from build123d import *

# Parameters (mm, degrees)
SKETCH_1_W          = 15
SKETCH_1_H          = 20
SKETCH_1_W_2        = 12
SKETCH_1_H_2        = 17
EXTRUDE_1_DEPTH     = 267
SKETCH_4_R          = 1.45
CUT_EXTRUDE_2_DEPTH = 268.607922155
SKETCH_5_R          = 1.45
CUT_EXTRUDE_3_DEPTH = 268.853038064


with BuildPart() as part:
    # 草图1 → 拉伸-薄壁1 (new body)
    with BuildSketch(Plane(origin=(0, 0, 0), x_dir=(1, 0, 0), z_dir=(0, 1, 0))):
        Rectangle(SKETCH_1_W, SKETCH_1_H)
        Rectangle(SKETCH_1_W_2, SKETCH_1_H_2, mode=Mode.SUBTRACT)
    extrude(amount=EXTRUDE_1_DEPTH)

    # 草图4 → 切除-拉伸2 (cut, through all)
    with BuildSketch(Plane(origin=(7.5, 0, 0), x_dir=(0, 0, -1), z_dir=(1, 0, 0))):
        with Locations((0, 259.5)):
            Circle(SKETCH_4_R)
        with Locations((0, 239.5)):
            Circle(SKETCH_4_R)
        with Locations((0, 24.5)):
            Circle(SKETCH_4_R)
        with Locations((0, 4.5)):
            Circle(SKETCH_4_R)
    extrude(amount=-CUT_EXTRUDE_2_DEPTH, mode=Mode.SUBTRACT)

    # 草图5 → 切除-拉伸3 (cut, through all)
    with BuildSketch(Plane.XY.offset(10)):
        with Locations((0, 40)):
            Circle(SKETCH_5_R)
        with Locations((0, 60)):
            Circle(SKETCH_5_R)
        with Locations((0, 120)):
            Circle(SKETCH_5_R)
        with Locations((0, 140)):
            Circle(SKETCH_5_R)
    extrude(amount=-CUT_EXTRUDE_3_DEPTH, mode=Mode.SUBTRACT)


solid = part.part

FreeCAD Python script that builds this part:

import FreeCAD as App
import Part
import Sketcher

V = App.Vector

doc = App.newDocument("Part")
body = doc.addObject("PartDesign::Body", "Body")

# Sketch on XZ plane
sketch1 = body.newObject("Sketcher::SketchObject", "Sketch")
sketch1.AttachmentSupport = (doc.getObject("XZ_Plane"), [""])
sketch1.MapMode = "FlatFace"
sketch1.addGeometry(Part.LineSegment(V(-8, -10, 0), V(-8, 10, 0)), False)
sketch1.addGeometry(Part.LineSegment(V(-8, 10, 0), V(8, 10, 0)), False)
sketch1.addGeometry(Part.LineSegment(V(8, 10, 0), V(8, -10, 0)), False)
sketch1.addGeometry(Part.LineSegment(V(8, -10, 0), V(-8, -10, 0)), False)
sketch1.addGeometry(Part.LineSegment(V(6, 8, 0), V(-6, 8, 0)), False)
sketch1.addGeometry(Part.LineSegment(V(-6, 8, 0), V(-6, -8, 0)), False)
sketch1.addGeometry(Part.LineSegment(V(-6, -8, 0), V(6, -8, 0)), False)
sketch1.addGeometry(Part.LineSegment(V(6, -8, 0), V(6, 8, 0)), False)
sketch1.addConstraint(Sketcher.Constraint("Coincident", 0, 2, 1, 1))
sketch1.addConstraint(Sketcher.Constraint("Coincident", 1, 2, 2, 1))
sketch1.addConstraint(Sketcher.Constraint("Coincident", 2, 2, 3, 1))
sketch1.addConstraint(Sketcher.Constraint("Coincident", 3, 2, 0, 1))
sketch1.addConstraint(Sketcher.Constraint("Coincident", 4, 2, 5, 1))
sketch1.addConstraint(Sketcher.Constraint("Coincident", 5, 2, 6, 1))
sketch1.addConstraint(Sketcher.Constraint("Coincident", 6, 2, 7, 1))
sketch1.addConstraint(Sketcher.Constraint("Coincident", 7, 2, 4, 1))
sketch1.addConstraint(Sketcher.Constraint("Vertical", 0))
sketch1.addConstraint(Sketcher.Constraint("Horizontal", 1))
sketch1.addConstraint(Sketcher.Constraint("Vertical", 2))
sketch1.addConstraint(Sketcher.Constraint("Horizontal", 3))
sketch1.addConstraint(Sketcher.Constraint("Horizontal", 4))
sketch1.addConstraint(Sketcher.Constraint("Vertical", 5))
sketch1.addConstraint(Sketcher.Constraint("Horizontal", 6))
sketch1.addConstraint(Sketcher.Constraint("Vertical", 7))
sketch1.addConstraint(Sketcher.Constraint("Symmetric", 0, 2, 2, 2, -1, 1))
sketch1.addConstraint(Sketcher.Constraint("Symmetric", 4, 2, 6, 2, -1, 1))
sketch1.addConstraint(Sketcher.Constraint("DistanceX", 1, 1, 1, 2, 15.0))
sketch1.addConstraint(Sketcher.Constraint("DistanceX", 4, 2, 4, 1, 12.0))
sketch1.addConstraint(Sketcher.Constraint("DistanceY", 0, 1, 0, 2, 20.0))
sketch1.addConstraint(Sketcher.Constraint("DistanceY", 5, 2, 5, 1, 17.0))
pad1 = body.newObject("PartDesign::Pad", "Pad")
pad1.Profile = sketch1
pad1.Length = 267
pad1.Reversed = True

# Sketch on YZ plane
sketch2 = body.newObject("Sketcher::SketchObject", "Sketch001")
sketch2.AttachmentSupport = (doc.getObject("YZ_Plane"), [""])
sketch2.MapMode = "FlatFace"
sketch2.AttachmentOffset = App.Placement(V(0, 0, 7.5), App.Rotation())
sketch2.addGeometry(Part.Circle(V(259.5, 0, 0), V(0, 0, 1), 1.4), False)
sketch2.addGeometry(Part.Circle(V(239.5, 0, 0), V(0, 0, 1), 1.4), False)
sketch2.addGeometry(Part.Circle(V(24.5, 0, 0), V(0, 0, 1), 1.4), False)
sketch2.addGeometry(Part.Circle(V(4.5, 0, 0), V(0, 0, 1), 1.4), False)
sketch2.addConstraint(Sketcher.Constraint("Equal", 0, 1))
sketch2.addConstraint(Sketcher.Constraint("Equal", 1, 2))
sketch2.addConstraint(Sketcher.Constraint("Equal", 2, 3))
sketch2.addConstraint(Sketcher.Constraint("PointOnObject", 0, 3, -1))
sketch2.addConstraint(Sketcher.Constraint("PointOnObject", 1, 3, -1))
sketch2.addConstraint(Sketcher.Constraint("PointOnObject", 2, 3, -1))
sketch2.addConstraint(Sketcher.Constraint("PointOnObject", 3, 3, -1))
sketch2.addConstraint(Sketcher.Constraint("Diameter", 0, 2.9))
sketch2.addConstraint(Sketcher.Constraint("DistanceX", 1, 3, 0, 3, 20.0))
sketch2.addConstraint(Sketcher.Constraint("DistanceX", 2, 3, 1, 3, 215.0))
sketch2.addConstraint(Sketcher.Constraint("DistanceX", 3, 3, 2, 3, 20.0))
sketch2.addConstraint(Sketcher.Constraint("DistanceX", -1, 1, 0, 3, 259.5))
pocket1 = body.newObject("PartDesign::Pocket", "Pocket")
pocket1.Profile = sketch2
pocket1.Type = "ThroughAll"

# Sketch on XY plane
sketch3 = body.newObject("Sketcher::SketchObject", "Sketch002")
sketch3.AttachmentSupport = (doc.getObject("XY_Plane"), [""])
sketch3.MapMode = "FlatFace"
sketch3.AttachmentOffset = App.Placement(V(0, 0, 10), App.Rotation())
sketch3.addGeometry(Part.Circle(V(0, 40, 0), V(0, 0, 1), 1.4), False)
sketch3.addGeometry(Part.Circle(V(0, 60, 0), V(0, 0, 1), 1.4), False)
sketch3.addGeometry(Part.Circle(V(0, 120, 0), V(0, 0, 1), 1.4), False)
sketch3.addGeometry(Part.Circle(V(0, 140, 0), V(0, 0, 1), 1.4), False)
sketch3.addConstraint(Sketcher.Constraint("Equal", 0, 1))
sketch3.addConstraint(Sketcher.Constraint("Equal", 1, 2))
sketch3.addConstraint(Sketcher.Constraint("Equal", 2, 3))
sketch3.addConstraint(Sketcher.Constraint("PointOnObject", 0, 3, -2))
sketch3.addConstraint(Sketcher.Constraint("PointOnObject", 1, 3, -2))
sketch3.addConstraint(Sketcher.Constraint("PointOnObject", 2, 3, -2))
sketch3.addConstraint(Sketcher.Constraint("PointOnObject", 3, 3, -2))
sketch3.addConstraint(Sketcher.Constraint("Diameter", 0, 2.9))
sketch3.addConstraint(Sketcher.Constraint("DistanceY", -1, 1, 0, 3, 40.0))
sketch3.addConstraint(Sketcher.Constraint("DistanceY", -1, 1, 1, 3, 60.0))
sketch3.addConstraint(Sketcher.Constraint("DistanceY", -1, 1, 2, 3, 120.0))
sketch3.addConstraint(Sketcher.Constraint("DistanceY", -1, 1, 3, 3, 140.0))
pocket2 = body.newObject("PartDesign::Pocket", "Pocket001")
pocket2.Profile = sketch3
pocket2.Type = "ThroughAll"

doc.recompute()
